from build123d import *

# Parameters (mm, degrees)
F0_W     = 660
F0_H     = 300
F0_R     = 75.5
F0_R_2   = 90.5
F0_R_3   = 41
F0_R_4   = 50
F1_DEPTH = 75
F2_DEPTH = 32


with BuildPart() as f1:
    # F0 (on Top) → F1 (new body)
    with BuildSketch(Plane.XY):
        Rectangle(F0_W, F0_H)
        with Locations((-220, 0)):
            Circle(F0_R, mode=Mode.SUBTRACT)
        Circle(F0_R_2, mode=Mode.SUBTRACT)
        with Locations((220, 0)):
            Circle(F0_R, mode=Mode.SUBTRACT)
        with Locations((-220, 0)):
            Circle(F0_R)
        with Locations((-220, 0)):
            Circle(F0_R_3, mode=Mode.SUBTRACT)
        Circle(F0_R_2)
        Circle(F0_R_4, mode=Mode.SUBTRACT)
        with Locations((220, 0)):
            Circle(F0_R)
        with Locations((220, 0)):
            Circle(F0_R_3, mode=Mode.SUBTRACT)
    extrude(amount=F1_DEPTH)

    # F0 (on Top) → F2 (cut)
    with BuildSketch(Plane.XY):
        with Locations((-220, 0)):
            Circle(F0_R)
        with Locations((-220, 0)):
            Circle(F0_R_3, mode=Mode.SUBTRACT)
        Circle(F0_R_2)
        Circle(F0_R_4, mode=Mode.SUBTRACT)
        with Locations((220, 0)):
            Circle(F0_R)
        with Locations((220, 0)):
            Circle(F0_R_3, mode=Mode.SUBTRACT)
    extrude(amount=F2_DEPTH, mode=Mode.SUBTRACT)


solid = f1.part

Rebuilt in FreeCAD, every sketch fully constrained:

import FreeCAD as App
import Part
import Sketcher

doc = App.newDocument("Part")
params = doc.addObject("Spreadsheet::Sheet", "Params")
for row, (alias, value) in enumerate([
    ("sketch1_diameter", "82 mm"),
    ("sketch1_diameter2", "100 mm"),
    ("sketch1_width", "660 mm"),
    ("sketch1_height", "300 mm"),
    ("pad1_length", "75 mm"),
    ("sketch2_diameter", "151 mm"),
    ("sketch2_diameter2", "82 mm"),
    ("sketch2_diameter3", "181 mm"),
    ("sketch2_diameter4", "100 mm"),
    ("pocket1_length", "32 mm"),
], start=1):
    params.set(f"A{row}", alias)
    params.set(f"B{row}", "=" + value)
    params.setAlias(f"B{row}", alias)

body = doc.addObject("PartDesign::Body", "Body")

# Sketch on XY plane
sketch1 = body.newObject("Sketcher::SketchObject", "Sketch")
sketch1.AttachmentSupport = (doc.getObject("XY_Plane"), [""])
sketch1.MapMode = "FlatFace"
sketch1.addGeometry([
    Part.LineSegment(App.Vector(-330, 150, 0), App.Vector(-330, -150, 0)),  # 0
    Part.LineSegment(App.Vector(-330, -150, 0), App.Vector(330, -150, 0)),  # 1
    Part.LineSegment(App.Vector(330, -150, 0), App.Vector(330, 150, 0)),  # 2
    Part.LineSegment(App.Vector(330, 150, 0), App.Vector(-330, 150, 0)),  # 3
    Part.Circle(App.Vector(-220, 0, 0), App.Vector(0, 0, 1), 41),  # 4
    Part.Circle(App.Vector(0, 0, 0), App.Vector(0, 0, 1), 50),  # 5
    Part.Circle(App.Vector(220, 0, 0), App.Vector(0, 0, 1), 41),  # 6
], False)
sketch1.addConstraint([
    Sketcher.Constraint("Coincident", 0, 2, 1, 1),
    Sketcher.Constraint("Coincident", 1, 2, 2, 1),
    Sketcher.Constraint("Coincident", 2, 2, 3, 1),
    Sketcher.Constraint("Coincident", 3, 2, 0, 1),
    Sketcher.Constraint("Vertical", 0),
    Sketcher.Constraint("Horizontal", 1),
    Sketcher.Constraint("Vertical", 2),
    Sketcher.Constraint("Horizontal", 3),
    Sketcher.Constraint("Coincident", 5, 3, -1, 1),
    Sketcher.Constraint("Equal", 4, 6),
    Sketcher.Constraint("Symmetric", 4, 3, 6, 3, -1, 1),
    Sketcher.Constraint("Symmetric", 0, 2, 2, 2, -1, 1),
    Sketcher.Constraint("PointOnObject", 4, 3, -1),
    Sketcher.Constraint("Diameter", 4, 82.0),
    Sketcher.Constraint("Diameter", 5, 100.0),
    Sketcher.Constraint("DistanceX", 1, 1, 1, 2, 660.0),
    Sketcher.Constraint("DistanceY", 0, 2, 0, 1, 300.0),
    Sketcher.Constraint("DistanceX", 4, 3, -1, 1, 220.0),
])
sketch1.setExpression("Constraints[13]", "Params.sketch1_diameter")
sketch1.setExpression("Constraints[14]", "Params.sketch1_diameter2")
sketch1.setExpression("Constraints[15]", "Params.sketch1_width")
sketch1.setExpression("Constraints[16]", "Params.sketch1_height")
pad1 = body.newObject("PartDesign::Pad", "Pad")
pad1.Profile = sketch1
pad1.setExpression("Length", "Params.pad1_length")

# Sketch on XY plane
sketch2 = body.newObject("Sketcher::SketchObject", "Sketch001")
sketch2.AttachmentSupport = (doc.getObject("XY_Plane"), [""])
sketch2.MapMode = "FlatFace"
sketch2.addGeometry([
    Part.Circle(App.Vector(-220, 0, 0), App.Vector(0, 0, 1), 76),  # 0
    Part.Circle(App.Vector(-220, 0, 0), App.Vector(0, 0, 1), 41),  # 1
    Part.Circle(App.Vector(0, 0, 0), App.Vector(0, 0, 1), 90),  # 2
    Part.Circle(App.Vector(0, 0, 0), App.Vector(0, 0, 1), 50),  # 3
    Part.Circle(App.Vector(220, 0, 0), App.Vector(0, 0, 1), 76),  # 4
    Part.Circle(App.Vector(220, 0, 0), App.Vector(0, 0, 1), 41),  # 5
], False)
sketch2.addConstraint([
    Sketcher.Constraint("Coincident", 2, 3, -1, 1),
    Sketcher.Constraint("Coincident", 3, 3, -1, 1),
    Sketcher.Constraint("Coincident", 1, 3, 0, 3),
    Sketcher.Constraint("Coincident", 5, 3, 4, 3),
    Sketcher.Constraint("Equal", 0, 4),
    Sketcher.Constraint("Equal", 1, 5),
    Sketcher.Constraint("Symmetric", 0, 3, 4, 3, -1, 1),
    Sketcher.Constraint("PointOnObject", 0, 3, -1),
    Sketcher.Constraint("Diameter", 0, 151.0),
    Sketcher.Constraint("Diameter", 1, 82.0),
    Sketcher.Constraint("Diameter", 2, 181.0),
    Sketcher.Constraint("Diameter", 3, 100.0),
    Sketcher.Constraint("DistanceX", 0, 3, -1, 1, 220.0),
])
sketch2.setExpression("Constraints[8]", "Params.sketch2_diameter")
sketch2.setExpression("Constraints[9]", "Params.sketch2_diameter2")
sketch2.setExpression("Constraints[10]", "Params.sketch2_diameter3")
sketch2.setExpression("Constraints[11]", "Params.sketch2_diameter4")
pocket1 = body.newObject("PartDesign::Pocket", "Pocket")
pocket1.Profile = sketch2
pocket1.setExpression("Length", "Params.pocket1_length")
pocket1.Reversed = True

doc.recompute()
